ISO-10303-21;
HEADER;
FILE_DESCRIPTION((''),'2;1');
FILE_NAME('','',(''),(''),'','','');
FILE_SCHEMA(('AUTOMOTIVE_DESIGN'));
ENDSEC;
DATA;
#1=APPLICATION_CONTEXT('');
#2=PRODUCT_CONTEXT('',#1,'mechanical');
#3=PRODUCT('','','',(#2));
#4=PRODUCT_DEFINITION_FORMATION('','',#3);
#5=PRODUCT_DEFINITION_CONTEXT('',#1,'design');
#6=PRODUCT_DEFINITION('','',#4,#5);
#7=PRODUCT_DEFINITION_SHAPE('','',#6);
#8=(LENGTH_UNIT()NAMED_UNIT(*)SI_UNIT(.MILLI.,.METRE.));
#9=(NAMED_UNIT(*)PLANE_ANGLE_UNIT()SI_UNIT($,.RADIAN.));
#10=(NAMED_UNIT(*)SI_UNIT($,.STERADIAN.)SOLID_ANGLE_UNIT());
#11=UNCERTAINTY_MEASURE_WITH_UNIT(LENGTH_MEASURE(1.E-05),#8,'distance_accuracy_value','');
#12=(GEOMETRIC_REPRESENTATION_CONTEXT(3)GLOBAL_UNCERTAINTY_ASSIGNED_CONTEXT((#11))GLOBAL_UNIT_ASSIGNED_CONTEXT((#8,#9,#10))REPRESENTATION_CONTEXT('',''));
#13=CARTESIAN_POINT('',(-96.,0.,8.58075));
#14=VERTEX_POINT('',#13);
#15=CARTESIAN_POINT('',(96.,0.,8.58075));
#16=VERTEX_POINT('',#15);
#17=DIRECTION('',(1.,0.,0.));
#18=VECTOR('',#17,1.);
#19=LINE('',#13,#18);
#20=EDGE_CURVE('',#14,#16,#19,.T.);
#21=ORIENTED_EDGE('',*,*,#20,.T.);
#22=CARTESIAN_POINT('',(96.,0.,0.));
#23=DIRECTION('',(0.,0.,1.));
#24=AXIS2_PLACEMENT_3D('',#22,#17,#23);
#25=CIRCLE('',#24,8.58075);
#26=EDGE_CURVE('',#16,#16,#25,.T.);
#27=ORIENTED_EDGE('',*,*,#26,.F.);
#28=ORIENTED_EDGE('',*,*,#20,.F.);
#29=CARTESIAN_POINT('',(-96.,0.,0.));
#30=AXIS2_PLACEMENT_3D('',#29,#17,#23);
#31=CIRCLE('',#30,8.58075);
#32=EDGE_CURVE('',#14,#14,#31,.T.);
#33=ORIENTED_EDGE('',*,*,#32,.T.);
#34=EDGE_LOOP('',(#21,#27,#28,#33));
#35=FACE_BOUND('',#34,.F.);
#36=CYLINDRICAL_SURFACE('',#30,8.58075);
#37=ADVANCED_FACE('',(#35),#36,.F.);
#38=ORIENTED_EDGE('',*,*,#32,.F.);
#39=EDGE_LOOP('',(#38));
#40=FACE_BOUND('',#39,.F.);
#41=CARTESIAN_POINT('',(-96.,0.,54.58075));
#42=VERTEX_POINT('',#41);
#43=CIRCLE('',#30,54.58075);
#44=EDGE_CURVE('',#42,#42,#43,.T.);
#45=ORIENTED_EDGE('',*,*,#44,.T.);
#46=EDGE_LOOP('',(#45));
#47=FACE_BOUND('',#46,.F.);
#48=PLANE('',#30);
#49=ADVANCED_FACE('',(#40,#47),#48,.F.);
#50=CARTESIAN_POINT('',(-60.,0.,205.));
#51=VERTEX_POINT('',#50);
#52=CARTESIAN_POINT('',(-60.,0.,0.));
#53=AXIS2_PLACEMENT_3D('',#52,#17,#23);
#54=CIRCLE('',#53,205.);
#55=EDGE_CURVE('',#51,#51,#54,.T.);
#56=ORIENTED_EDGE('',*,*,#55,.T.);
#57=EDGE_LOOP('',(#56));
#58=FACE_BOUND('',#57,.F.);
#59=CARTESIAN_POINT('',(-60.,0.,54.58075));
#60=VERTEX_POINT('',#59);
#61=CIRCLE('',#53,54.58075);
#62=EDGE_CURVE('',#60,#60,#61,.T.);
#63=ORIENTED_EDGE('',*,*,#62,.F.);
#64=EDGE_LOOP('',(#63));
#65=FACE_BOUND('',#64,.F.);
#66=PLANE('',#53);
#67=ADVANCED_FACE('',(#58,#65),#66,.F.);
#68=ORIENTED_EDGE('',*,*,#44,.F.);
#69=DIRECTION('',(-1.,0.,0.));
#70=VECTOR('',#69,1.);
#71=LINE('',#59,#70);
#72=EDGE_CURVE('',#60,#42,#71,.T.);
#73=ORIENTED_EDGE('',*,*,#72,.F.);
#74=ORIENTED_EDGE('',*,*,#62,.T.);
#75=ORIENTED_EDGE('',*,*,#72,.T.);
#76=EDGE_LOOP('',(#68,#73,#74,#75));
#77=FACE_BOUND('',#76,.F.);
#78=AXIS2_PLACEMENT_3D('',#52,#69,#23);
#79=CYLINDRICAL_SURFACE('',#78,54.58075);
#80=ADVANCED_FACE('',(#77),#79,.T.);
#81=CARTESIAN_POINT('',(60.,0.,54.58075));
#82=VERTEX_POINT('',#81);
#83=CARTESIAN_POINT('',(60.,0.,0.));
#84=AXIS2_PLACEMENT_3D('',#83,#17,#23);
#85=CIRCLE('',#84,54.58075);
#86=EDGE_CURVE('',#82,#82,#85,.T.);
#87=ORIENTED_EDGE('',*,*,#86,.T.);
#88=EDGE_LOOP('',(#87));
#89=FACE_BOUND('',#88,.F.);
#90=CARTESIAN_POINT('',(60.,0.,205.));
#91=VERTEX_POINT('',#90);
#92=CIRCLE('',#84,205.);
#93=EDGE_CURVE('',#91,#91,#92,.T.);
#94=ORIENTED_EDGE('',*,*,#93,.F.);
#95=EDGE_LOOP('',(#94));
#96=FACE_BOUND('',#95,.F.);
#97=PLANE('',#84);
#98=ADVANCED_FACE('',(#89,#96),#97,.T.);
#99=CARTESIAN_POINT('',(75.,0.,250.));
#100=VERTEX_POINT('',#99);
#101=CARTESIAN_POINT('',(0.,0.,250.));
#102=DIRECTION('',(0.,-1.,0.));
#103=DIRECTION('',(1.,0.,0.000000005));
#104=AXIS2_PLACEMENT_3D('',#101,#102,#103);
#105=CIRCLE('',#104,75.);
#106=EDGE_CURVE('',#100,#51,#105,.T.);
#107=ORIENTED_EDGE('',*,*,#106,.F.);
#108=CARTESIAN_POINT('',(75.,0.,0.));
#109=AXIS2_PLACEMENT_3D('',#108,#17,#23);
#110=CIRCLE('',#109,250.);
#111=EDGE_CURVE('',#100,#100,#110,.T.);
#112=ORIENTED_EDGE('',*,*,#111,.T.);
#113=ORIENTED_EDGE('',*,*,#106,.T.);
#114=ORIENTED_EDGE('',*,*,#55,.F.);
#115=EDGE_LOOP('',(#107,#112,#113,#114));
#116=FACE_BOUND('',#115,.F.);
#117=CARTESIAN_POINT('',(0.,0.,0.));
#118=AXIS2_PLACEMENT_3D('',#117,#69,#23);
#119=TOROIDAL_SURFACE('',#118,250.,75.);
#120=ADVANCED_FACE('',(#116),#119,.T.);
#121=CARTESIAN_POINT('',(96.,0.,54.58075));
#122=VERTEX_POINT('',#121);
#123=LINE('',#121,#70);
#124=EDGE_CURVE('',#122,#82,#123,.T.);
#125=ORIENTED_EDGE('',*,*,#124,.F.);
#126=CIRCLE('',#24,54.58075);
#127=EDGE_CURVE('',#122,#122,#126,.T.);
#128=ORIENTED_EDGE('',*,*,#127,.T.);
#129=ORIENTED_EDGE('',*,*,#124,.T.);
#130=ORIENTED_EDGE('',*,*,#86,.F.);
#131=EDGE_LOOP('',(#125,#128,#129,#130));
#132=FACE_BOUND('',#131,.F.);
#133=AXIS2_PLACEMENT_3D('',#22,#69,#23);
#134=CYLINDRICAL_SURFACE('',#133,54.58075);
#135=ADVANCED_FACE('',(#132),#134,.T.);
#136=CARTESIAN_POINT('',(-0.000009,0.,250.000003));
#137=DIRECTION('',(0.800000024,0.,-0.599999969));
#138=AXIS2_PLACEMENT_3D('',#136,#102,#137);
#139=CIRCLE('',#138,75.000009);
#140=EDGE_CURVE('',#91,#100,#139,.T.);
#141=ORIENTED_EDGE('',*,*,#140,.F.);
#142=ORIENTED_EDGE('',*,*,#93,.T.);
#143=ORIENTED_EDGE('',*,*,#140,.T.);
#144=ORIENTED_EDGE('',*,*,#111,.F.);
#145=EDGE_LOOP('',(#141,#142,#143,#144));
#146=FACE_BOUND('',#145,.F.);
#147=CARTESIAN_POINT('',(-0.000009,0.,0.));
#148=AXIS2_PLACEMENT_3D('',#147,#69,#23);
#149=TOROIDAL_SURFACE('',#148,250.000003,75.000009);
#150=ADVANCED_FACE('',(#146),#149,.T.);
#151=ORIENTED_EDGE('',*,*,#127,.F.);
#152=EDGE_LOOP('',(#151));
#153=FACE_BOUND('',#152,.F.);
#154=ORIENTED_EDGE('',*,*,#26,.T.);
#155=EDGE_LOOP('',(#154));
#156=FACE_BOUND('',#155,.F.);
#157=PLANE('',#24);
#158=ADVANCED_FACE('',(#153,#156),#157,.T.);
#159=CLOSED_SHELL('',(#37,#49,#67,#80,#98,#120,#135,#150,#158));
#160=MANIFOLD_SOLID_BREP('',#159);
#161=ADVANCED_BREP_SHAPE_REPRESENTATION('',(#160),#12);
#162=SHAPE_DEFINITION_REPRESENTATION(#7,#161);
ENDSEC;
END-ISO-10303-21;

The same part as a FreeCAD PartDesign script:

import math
import FreeCAD as App
import Part
import Sketcher
Q = App.Units.Quantity

doc = App.newDocument("Part")
body = doc.addObject("PartDesign::Body", "Body")

# Sketch on XZ plane
sketch1 = body.newObject("Sketcher::SketchObject", "Sketch")
sketch1.AttachmentSupport = (doc.getObject("XZ_Plane"), [""])
sketch1.MapMode = "FlatFace"
sketch1.addGeometry([
    Part.LineSegment(App.Vector(-96, 55, 0), App.Vector(-96, 9, 0)),  # 0
    Part.LineSegment(App.Vector(-96, 9, 0), App.Vector(96, 9, 0)),  # 1
    Part.LineSegment(App.Vector(96, 9, 0), App.Vector(96, 55, 0)),  # 2
    Part.LineSegment(App.Vector(96, 55, 0), App.Vector(60, 55, 0)),  # 3
    Part.LineSegment(App.Vector(60, 55, 0), App.Vector(60, 205, 0)),  # 4
    Part.ArcOfCircle(Part.Circle(App.Vector(0, 250, 0), App.Vector(0, 0, 1), 75), math.radians(-37), math.radians(0)),  # 5
    Part.ArcOfCircle(Part.Circle(App.Vector(0, 250, 0), App.Vector(0, 0, 1), 75), math.radians(0), math.radians(217)),  # 6
    Part.LineSegment(App.Vector(-60, 205, 0), App.Vector(-60, 55, 0)),  # 7
    Part.LineSegment(App.Vector(-60, 55, 0), App.Vector(-96, 55, 0)),  # 8
], False)
sketch1.addConstraint([
    Sketcher.Constraint("Coincident", 0, 2, 1, 1),
    Sketcher.Constraint("Coincident", 1, 2, 2, 1),
    Sketcher.Constraint("Coincident", 2, 2, 3, 1),
    Sketcher.Constraint("Coincident", 3, 2, 4, 1),
    Sketcher.Constraint("Coincident", 4, 2, 5, 1),
    Sketcher.Constraint("Tangent", 5, 2, 6, 1),
    Sketcher.Constraint("Coincident", 6, 2, 7, 1),
    Sketcher.Constraint("Coincident", 7, 2, 8, 1),
    Sketcher.Constraint("Coincident", 8, 2, 0, 1),
    Sketcher.Constraint("Vertical", 0),
    Sketcher.Constraint("Horizontal", 1),
    Sketcher.Constraint("Vertical", 2),
    Sketcher.Constraint("Horizontal", 3),
    Sketcher.Constraint("Vertical", 4),
    Sketcher.Constraint("Vertical", 7),
    Sketcher.Constraint("Horizontal", 8),
    Sketcher.Constraint("Symmetric", 4, 2, 6, 2, -2),
    Sketcher.Constraint("Symmetric", 2, 2, 8, 2, -2),
    Sketcher.Constraint("PointOnObject", 6, 3, -2),
    Sketcher.Constraint("Horizontal", 6, 3, 5, 2),
    Sketcher.Constraint("Radius", 6, Q("75 mm")),
    Sketcher.Constraint("DistanceX", 1, 1, 1, 2, Q("192 mm")),
    Sketcher.Constraint("DistanceX", 3, 2, 3, 1, Q("36 mm")),
    Sketcher.Constraint("DistanceY", 0, 2, 0, 1, Q("46 mm")),
    Sketcher.Constraint("DistanceY", -1, 1, 6, 3, Q("250 mm")),
    Sketcher.Constraint("DistanceY", 4, 1, 4, 2, Q("150.41925 mm")),
])
revolution = body.newObject("PartDesign::Revolution", "Revolution")
revolution.Profile = sketch1
revolution.ReferenceAxis = (sketch1, ["H_Axis"])
revolution.Angle = 360

# Sketch on YZ plane
sketch2 = body.newObject("Sketcher::SketchObject", "Sketch001")
sketch2.AttachmentSupport = (doc.getObject("YZ_Plane"), [""])
sketch2.MapMode = "FlatFace"
sketch2.AttachmentOffset = App.Placement(App.Vector(0, 0, -60), App.Rotation())
sketch2.addGeometry([
    Part.ArcOfCircle(Part.Circle(App.Vector(51, 176, 0), App.Vector(0, 0, 1), 10), math.radians(-26), math.radians(74)),  # 0
    Part.LineSegment(App.Vector(60, 171, 0), App.Vector(13, 72, 0)),  # 1
    Part.ArcOfCircle(Part.Circle(App.Vector(4, 76, 0), App.Vector(0, 0, 1), 10), math.radians(-93), math.radians(-26)),  # 2
    Part.ArcOfCircle(Part.Circle(App.Vector(0, 0, 0), App.Vector(0, 0, 1), 67), math.radians(87.35), math.radians(92.65)),  # 3
    Part.ArcOfCircle(Part.Circle(App.Vector(-4, 76, 0), App.Vector(0, 0, 1), 10), math.radians(-154), math.radians(-87)),  # 4
    Part.LineSegment(App.Vector(-13, 72, 0), App.Vector(-60, 171, 0)),  # 5
    Part.ArcOfCircle(Part.Circle(App.Vector(-51, 176, 0), App.Vector(0, 0, 1), 10), math.radians(106), math.radians(206)),  # 6
    Part.ArcOfCircle(Part.Circle(App.Vector(0, 0, 0), App.Vector(0, 0, 1), 193), math.radians(74), math.radians(106)),  # 7
], False)
sketch2.addConstraint([
    Sketcher.Constraint("Tangent", 0, 1, 1, 1),
    Sketcher.Constraint("Tangent", 1, 2, 2, 2),
    Sketcher.Constraint("Tangent", 2, 1, 3, 1),
    Sketcher.Constraint("Tangent", 3, 2, 4, 2),
    Sketcher.Constraint("Tangent", 4, 1, 5, 1),
    Sketcher.Constraint("Tangent", 5, 2, 6, 2),
    Sketcher.Constraint("Tangent", 6, 1, 7, 2),
    Sketcher.Constraint("Tangent", 7, 1, 0, 2),
    Sketcher.Constraint("Coincident", 7, 3, -1, 1),
    Sketcher.Constraint("Equal", 0, 2),
    Sketcher.Constraint("Equal", 2, 4),
    Sketcher.Constraint("Equal", 4, 6),
    Sketcher.Constraint("Symmetric", 2, 3, 4, 3, -2),
    Sketcher.Constraint("Horizontal", 0, 3, 6, 3),
    Sketcher.Constraint("Radius", 0, Q("10 mm")),
    Sketcher.Constraint("Radius", 3, Q("66.581034 mm")),
    Sketcher.Constraint("Radius", 7, Q("193.000005 mm")),
    Sketcher.Constraint("Distance", 1, Q("110.064239 mm")),
    Sketcher.Constraint("DistanceY", -1, 1, 0, 3, Q("175.66323 mm")),
    Sketcher.Constraint("DistanceX", -1, 1, 1, 2, Q("12.55207 mm")),
])
pad1 = body.newObject("PartDesign::Pad", "Pad")
pad1.Profile = sketch2
pad1.Length = 25

doc.recompute()
